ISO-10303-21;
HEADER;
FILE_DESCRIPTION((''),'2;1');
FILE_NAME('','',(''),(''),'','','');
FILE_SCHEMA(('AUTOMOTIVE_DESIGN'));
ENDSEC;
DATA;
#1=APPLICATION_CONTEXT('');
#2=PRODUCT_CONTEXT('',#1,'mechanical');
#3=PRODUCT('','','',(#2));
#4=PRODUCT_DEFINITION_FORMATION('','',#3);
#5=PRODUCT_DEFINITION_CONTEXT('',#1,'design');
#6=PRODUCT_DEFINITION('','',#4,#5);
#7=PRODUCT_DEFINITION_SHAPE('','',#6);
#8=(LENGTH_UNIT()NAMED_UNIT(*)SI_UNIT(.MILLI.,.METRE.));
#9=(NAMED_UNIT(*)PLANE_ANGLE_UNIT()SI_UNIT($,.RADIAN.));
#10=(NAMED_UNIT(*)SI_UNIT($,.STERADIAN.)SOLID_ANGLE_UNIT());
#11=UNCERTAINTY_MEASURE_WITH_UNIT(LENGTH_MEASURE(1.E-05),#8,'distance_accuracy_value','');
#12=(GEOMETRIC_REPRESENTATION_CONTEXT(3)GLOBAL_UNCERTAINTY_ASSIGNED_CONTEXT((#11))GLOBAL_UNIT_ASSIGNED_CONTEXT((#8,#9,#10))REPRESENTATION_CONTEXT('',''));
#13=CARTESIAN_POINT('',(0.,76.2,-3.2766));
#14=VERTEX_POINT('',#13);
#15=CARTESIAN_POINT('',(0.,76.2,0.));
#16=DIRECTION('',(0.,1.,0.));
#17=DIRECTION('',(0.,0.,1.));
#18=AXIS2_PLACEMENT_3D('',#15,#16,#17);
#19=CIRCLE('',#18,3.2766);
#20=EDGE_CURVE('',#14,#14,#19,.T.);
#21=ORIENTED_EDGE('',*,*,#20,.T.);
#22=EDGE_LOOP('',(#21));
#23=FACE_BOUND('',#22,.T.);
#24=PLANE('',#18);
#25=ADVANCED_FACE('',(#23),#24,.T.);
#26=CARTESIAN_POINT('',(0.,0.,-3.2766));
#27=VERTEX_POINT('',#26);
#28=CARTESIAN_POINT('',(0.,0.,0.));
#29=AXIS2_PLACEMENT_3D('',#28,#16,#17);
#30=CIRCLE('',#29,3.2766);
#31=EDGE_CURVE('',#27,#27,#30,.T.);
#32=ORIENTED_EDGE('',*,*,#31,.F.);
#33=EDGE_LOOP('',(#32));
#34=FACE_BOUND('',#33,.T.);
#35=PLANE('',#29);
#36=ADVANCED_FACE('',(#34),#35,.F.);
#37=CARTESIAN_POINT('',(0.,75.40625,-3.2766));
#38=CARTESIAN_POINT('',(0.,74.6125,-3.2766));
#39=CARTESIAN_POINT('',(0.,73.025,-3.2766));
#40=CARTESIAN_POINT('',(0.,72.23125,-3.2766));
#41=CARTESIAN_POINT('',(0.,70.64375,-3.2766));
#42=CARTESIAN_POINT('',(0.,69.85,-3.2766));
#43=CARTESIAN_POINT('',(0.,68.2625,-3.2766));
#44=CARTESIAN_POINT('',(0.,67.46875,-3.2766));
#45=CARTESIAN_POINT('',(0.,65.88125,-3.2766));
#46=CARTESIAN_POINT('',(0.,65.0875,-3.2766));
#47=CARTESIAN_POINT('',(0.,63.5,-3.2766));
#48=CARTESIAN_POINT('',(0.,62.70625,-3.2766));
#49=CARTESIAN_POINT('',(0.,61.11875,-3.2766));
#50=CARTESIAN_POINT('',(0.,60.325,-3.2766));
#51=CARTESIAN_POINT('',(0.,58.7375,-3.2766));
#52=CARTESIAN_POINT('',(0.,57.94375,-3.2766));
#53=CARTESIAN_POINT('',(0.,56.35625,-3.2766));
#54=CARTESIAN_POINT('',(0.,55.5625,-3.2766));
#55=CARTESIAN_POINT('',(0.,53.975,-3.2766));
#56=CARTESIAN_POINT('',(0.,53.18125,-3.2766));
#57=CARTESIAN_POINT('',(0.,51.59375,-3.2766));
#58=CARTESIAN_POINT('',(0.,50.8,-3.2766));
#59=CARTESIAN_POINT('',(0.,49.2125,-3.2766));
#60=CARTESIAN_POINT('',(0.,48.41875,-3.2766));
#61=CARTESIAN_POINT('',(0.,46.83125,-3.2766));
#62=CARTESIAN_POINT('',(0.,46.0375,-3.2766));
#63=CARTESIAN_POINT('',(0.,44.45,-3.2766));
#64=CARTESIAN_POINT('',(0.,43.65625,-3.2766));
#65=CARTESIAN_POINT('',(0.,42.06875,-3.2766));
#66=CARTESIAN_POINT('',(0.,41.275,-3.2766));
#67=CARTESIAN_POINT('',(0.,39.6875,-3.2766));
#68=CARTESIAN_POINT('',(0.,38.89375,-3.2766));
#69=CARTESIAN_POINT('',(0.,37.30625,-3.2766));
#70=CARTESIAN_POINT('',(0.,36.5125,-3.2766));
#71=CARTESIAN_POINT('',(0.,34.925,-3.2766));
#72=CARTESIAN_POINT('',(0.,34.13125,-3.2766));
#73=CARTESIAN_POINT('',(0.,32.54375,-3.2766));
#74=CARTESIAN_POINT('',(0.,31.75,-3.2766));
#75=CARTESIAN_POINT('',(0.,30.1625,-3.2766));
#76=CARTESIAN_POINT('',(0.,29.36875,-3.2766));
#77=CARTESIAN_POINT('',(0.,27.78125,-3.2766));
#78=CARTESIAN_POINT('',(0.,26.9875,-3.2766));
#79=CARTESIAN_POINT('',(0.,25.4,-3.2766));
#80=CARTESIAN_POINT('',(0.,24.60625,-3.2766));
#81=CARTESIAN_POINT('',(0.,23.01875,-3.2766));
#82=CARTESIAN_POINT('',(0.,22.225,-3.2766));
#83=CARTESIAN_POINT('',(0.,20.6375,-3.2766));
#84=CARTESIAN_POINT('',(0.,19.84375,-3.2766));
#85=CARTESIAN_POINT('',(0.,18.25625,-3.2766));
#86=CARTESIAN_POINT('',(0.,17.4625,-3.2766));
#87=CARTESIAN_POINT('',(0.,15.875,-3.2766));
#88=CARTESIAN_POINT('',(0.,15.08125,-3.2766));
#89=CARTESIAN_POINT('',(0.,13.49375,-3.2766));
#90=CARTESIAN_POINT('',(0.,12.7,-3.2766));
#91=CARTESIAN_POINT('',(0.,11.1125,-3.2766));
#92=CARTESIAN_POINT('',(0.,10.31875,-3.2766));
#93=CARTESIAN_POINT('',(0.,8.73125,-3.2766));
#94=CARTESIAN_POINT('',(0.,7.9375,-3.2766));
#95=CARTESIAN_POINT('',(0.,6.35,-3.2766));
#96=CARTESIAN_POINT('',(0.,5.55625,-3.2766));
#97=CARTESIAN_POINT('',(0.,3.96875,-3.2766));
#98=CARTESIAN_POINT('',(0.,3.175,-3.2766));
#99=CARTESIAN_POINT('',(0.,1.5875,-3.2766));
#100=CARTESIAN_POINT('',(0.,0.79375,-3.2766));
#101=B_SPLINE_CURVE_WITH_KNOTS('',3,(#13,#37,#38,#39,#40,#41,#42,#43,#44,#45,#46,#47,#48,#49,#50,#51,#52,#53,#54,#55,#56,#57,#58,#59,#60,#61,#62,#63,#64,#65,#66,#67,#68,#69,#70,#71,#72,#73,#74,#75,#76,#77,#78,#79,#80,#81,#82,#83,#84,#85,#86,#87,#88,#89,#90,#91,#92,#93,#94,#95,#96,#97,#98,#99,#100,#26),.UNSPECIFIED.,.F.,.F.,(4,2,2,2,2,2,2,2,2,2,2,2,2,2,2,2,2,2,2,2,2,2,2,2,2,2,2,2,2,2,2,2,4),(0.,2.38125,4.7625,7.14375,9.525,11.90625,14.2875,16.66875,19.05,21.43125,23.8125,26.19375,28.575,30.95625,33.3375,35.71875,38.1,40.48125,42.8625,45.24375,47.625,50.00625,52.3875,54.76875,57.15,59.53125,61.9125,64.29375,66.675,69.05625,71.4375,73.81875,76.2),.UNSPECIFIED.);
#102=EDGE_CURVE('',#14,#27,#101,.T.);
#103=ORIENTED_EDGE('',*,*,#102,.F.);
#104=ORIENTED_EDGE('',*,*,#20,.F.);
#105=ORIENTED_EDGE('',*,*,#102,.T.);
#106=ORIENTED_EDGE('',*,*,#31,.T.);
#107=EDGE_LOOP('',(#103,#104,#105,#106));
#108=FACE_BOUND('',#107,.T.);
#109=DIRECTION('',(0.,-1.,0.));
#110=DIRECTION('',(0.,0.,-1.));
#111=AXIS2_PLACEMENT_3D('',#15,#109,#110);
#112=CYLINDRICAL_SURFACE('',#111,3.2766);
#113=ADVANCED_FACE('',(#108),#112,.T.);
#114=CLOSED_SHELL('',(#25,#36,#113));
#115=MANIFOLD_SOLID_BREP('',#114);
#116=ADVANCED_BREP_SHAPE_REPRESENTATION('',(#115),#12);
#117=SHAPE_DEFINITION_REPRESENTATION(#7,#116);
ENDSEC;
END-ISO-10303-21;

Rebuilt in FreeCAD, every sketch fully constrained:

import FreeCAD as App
import Part
import Sketcher
from FreeCAD import Vector
Q = App.Units.Quantity

doc = App.newDocument("Part")
body = doc.addObject("PartDesign::Body", "Body")

# Sketch on XZ plane
sketch1 = doc.addObject("Sketcher::SketchObject", "Sketch")
body.addObject(sketch1)
sketch1.AttachmentSupport = (doc.XZ_Plane, [""])
sketch1.MapMode = "FlatFace"
sketch1.addGeometry(Part.Circle(Vector(0, 0, 0), Vector(0, 0, 1), 3.3), False)
sketch1.addConstraint([
    Sketcher.Constraint("Coincident", 0, 3, -1, 1),
    Sketcher.Constraint("Diameter", 0, Q("0.258 in")),
])
pad1 = doc.addObject("PartDesign::Pad", "Pad")
body.addObject(pad1)
pad1.Profile = sketch1
pad1.Length = Q("3 in")
pad1.Reversed = True

doc.recompute()
